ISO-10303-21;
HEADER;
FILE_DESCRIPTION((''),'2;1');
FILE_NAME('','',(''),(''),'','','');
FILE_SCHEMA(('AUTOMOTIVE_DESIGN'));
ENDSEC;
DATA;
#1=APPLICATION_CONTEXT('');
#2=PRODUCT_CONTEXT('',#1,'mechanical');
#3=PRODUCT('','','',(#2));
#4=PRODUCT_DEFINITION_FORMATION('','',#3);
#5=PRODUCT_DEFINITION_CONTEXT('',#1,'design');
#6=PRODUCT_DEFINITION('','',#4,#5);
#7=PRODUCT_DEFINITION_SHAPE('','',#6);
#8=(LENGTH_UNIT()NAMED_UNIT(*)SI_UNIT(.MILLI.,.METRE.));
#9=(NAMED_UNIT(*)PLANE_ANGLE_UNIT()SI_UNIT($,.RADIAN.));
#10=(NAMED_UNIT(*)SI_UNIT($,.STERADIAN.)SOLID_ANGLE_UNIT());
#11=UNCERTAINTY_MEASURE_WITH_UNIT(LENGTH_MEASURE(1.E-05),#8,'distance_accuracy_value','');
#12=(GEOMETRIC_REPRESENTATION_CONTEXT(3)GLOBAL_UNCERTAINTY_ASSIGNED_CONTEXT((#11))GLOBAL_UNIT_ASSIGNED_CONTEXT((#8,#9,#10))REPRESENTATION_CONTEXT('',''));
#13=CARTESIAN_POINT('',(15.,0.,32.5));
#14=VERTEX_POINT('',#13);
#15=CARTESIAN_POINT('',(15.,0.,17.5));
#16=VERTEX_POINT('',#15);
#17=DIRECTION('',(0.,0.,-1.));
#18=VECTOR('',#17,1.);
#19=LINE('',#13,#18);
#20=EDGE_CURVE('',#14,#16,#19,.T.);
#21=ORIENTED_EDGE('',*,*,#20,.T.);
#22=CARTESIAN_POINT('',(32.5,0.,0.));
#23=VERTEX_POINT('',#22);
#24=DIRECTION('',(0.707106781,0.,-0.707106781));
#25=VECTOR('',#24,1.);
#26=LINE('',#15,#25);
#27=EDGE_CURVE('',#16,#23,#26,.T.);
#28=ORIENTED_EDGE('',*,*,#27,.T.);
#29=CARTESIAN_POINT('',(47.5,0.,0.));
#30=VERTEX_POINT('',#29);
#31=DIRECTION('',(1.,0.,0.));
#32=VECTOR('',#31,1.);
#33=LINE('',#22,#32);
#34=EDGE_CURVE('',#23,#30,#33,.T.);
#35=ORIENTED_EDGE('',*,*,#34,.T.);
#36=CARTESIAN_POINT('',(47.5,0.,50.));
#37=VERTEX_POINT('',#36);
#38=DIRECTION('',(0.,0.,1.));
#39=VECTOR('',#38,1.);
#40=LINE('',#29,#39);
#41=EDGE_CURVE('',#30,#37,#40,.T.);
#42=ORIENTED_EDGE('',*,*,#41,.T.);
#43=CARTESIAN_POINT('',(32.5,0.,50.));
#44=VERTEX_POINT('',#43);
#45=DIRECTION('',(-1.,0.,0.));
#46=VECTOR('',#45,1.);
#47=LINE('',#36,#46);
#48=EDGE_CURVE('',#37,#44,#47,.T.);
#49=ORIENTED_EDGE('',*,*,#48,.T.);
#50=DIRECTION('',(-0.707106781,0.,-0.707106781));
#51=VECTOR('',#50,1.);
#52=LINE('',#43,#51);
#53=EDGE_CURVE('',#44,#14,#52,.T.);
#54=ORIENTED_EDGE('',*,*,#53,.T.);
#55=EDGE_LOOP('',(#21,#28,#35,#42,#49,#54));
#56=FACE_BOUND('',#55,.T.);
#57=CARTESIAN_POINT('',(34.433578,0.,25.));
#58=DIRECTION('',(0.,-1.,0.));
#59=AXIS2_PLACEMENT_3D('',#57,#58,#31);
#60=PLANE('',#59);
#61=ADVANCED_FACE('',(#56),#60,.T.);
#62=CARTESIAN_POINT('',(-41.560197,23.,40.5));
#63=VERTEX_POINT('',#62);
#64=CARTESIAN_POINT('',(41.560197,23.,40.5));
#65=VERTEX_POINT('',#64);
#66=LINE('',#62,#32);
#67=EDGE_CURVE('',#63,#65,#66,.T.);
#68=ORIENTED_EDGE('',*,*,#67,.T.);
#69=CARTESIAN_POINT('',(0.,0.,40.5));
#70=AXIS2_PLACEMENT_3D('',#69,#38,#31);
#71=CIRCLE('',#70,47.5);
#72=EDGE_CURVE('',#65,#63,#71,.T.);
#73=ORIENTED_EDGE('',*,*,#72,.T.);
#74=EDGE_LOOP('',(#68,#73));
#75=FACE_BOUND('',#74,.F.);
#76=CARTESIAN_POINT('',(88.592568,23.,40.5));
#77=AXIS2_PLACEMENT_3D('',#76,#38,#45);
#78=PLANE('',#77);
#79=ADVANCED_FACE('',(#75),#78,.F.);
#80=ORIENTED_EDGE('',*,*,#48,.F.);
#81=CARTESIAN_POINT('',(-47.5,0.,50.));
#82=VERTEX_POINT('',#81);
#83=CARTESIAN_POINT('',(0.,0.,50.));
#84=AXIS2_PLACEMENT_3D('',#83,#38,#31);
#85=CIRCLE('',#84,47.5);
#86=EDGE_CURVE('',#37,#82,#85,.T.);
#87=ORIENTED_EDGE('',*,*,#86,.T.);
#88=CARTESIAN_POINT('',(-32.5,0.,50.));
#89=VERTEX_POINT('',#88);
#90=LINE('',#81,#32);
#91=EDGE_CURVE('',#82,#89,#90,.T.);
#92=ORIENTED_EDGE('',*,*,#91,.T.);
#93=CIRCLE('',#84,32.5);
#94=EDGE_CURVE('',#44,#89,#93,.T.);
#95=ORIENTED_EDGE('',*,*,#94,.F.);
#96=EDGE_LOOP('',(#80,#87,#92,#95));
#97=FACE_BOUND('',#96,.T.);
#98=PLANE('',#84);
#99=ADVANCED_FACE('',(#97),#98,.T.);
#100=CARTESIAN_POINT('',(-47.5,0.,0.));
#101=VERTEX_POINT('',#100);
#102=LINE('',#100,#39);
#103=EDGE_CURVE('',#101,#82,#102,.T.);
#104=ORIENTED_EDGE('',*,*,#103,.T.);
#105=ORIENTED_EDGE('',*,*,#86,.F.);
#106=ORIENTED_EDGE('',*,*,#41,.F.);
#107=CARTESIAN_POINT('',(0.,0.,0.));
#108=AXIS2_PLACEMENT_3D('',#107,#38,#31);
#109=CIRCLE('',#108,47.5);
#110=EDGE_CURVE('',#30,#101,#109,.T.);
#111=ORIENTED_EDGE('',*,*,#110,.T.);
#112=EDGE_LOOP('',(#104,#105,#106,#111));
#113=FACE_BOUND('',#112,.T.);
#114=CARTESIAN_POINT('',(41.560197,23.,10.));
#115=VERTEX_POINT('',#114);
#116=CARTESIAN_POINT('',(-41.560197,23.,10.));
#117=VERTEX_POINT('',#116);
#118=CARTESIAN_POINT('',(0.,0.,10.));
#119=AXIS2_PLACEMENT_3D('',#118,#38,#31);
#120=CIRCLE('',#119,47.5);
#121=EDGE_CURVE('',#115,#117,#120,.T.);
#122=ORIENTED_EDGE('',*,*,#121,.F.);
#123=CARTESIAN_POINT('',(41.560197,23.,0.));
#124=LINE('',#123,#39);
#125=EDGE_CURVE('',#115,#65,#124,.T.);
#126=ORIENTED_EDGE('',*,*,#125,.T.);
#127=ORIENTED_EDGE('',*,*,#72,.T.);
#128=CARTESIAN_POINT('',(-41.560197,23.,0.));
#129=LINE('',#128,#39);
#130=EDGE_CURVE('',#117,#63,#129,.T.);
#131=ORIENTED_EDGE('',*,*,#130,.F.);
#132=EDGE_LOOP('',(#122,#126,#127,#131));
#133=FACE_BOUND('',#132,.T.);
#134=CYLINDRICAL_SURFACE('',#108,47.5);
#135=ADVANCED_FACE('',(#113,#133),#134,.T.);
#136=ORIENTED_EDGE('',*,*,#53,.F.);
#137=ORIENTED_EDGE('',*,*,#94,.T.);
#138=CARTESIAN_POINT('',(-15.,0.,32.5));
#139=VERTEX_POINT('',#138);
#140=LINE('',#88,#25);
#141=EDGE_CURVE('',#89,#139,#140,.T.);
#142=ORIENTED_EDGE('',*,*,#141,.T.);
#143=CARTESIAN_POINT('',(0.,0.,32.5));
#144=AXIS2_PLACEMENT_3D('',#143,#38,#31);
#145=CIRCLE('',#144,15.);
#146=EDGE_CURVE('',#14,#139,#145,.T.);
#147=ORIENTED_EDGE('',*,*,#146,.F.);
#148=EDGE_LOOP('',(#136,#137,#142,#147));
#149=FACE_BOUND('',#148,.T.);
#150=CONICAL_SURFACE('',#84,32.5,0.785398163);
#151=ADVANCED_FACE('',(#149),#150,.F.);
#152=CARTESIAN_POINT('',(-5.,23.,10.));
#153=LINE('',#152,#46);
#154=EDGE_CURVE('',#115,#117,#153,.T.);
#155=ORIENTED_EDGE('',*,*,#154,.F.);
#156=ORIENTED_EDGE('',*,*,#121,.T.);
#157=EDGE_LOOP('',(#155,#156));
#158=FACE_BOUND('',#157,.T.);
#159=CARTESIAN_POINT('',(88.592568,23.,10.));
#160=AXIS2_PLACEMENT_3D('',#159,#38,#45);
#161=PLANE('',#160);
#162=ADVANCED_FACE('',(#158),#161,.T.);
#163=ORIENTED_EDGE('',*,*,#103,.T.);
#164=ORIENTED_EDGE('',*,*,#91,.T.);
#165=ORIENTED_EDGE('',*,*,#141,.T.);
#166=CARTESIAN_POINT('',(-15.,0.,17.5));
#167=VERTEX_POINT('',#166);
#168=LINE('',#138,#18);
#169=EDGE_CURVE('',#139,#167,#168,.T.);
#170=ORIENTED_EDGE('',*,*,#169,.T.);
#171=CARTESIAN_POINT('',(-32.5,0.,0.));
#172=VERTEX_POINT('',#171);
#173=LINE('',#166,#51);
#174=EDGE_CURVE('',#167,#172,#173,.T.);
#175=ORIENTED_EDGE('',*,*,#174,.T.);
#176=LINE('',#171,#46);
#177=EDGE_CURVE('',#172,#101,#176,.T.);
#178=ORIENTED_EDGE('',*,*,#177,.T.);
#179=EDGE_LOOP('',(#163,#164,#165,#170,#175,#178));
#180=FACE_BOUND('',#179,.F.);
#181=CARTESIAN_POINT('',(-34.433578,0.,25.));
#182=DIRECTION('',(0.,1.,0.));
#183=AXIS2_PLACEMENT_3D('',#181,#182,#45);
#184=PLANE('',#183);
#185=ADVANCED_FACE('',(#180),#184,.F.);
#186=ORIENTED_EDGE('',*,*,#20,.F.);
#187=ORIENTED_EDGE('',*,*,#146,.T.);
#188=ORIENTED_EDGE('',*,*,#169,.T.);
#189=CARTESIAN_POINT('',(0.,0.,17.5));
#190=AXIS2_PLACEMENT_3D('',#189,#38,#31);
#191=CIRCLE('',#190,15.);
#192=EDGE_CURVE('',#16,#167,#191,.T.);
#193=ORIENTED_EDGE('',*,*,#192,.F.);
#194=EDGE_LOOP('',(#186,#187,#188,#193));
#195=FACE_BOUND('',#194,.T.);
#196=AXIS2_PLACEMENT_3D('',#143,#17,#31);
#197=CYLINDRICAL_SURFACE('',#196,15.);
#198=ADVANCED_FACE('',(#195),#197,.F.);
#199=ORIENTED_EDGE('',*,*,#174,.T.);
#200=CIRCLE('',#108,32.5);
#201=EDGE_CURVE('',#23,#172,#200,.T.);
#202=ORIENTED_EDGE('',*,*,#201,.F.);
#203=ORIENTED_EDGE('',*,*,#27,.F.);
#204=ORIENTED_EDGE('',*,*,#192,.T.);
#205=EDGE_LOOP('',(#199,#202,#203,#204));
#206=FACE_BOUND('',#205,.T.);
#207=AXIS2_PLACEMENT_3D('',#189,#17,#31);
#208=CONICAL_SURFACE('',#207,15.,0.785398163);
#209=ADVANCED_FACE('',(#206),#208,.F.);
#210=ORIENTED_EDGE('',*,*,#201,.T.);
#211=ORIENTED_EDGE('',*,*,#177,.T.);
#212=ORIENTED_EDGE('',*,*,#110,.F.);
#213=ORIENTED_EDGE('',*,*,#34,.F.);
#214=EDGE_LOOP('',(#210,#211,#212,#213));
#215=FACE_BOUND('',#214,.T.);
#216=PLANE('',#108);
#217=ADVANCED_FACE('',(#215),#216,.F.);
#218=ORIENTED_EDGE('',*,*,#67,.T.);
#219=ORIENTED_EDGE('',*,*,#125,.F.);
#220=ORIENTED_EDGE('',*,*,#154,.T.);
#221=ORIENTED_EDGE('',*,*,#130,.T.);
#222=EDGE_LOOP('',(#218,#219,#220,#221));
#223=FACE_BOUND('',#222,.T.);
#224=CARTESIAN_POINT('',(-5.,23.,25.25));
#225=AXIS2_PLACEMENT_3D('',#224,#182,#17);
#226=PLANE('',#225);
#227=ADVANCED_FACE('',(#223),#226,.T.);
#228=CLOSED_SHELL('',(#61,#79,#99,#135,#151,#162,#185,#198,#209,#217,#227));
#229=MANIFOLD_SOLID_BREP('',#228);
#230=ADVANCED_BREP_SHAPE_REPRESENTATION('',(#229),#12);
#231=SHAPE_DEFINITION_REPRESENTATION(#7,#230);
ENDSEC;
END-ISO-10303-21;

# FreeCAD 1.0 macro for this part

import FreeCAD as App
import Part
import Sketcher
from FreeCAD import Vector

doc = App.newDocument("Part")
body = doc.addObject("PartDesign::Body", "Body")

sketch1 = body.newObject("Sketcher::SketchObject", "Sketch")
sketch1.AttachmentSupport = (doc.getObject("XZ_Plane"), [""])
sketch1.MapMode = "FlatFace"
sketch1.AttachmentOffset = App.Placement(Vector(0, 0, -23), App.Rotation())
sketch1.addGeometry(Part.LineSegment(Vector(-99, 40, 0), Vector(89, 40, 0)), False)
sketch1.addGeometry(Part.LineSegment(Vector(89, 40, 0), Vector(89, 10, 0)), False)
sketch1.addGeometry(Part.LineSegment(Vector(89, 10, 0), Vector(-99, 10, 0)), False)
sketch1.addGeometry(Part.LineSegment(Vector(-99, 10, 0), Vector(-99, 40, 0)), False)
sketch1.addConstraint(Sketcher.Constraint("Coincident", 0, 2, 1, 1))
sketch1.addConstraint(Sketcher.Constraint("Coincident", 1, 2, 2, 1))
sketch1.addConstraint(Sketcher.Constraint("Coincident", 2, 2, 3, 1))
sketch1.addConstraint(Sketcher.Constraint("Coincident", 3, 2, 0, 1))
sketch1.addConstraint(Sketcher.Constraint("Horizontal", 0))
sketch1.addConstraint(Sketcher.Constraint("Vertical", 1))
sketch1.addConstraint(Sketcher.Constraint("Horizontal", 2))
sketch1.addConstraint(Sketcher.Constraint("Vertical", 3))
sketch1.addConstraint(Sketcher.Constraint("DistanceY", 1, 2, 1, 1, 30.5))
sketch1.addConstraint(Sketcher.Constraint("DistanceY", -1, 1, 1, 2, 10.0))
sketch1.addConstraint(Sketcher.Constraint("DistanceX", 0, 1, 0, 2, 187.185136))
sketch1.addConstraint(Sketcher.Constraint("DistanceX", -1, 1, 0, 2, 88.592568))
pad1 = body.newObject("PartDesign::Pad", "Pad")
pad1.Profile = sketch1
pad1.Length = 40
pad1.Reversed = True
body2 = doc.addObject("PartDesign::Body", "Body001")

sketch2 = body2.newObject("Sketcher::SketchObject", "Sketch001")
sketch2.AttachmentSupport = (doc.getObject("XZ_Plane001"), [""])
sketch2.MapMode = "FlatFace"
sketch2.addGeometry(Part.LineSegment(Vector(32, 50, 0), Vector(15, 32, 0)), False)
sketch2.addGeometry(Part.LineSegment(Vector(15, 32, 0), Vector(15, 18, 0)), False)
sketch2.addGeometry(Part.LineSegment(Vector(15, 18, 0), Vector(32, 0, 0)), False)
sketch2.addGeometry(Part.LineSegment(Vector(32, 0, 0), Vector(48, 0, 0)), False)
sketch2.addGeometry(Part.LineSegment(Vector(48, 0, 0), Vector(48, 50, 0)), False)
sketch2.addGeometry(Part.LineSegment(Vector(48, 50, 0), Vector(32, 50, 0)), False)
sketch2.addConstraint(Sketcher.Constraint("Coincident", 0, 2, 1, 1))
sketch2.addConstraint(Sketcher.Constraint("Coincident", 1, 2, 2, 1))
sketch2.addConstraint(Sketcher.Constraint("Coincident", 2, 2, 3, 1))
sketch2.addConstraint(Sketcher.Constraint("Coincident", 3, 2, 4, 1))
sketch2.addConstraint(Sketcher.Constraint("Coincident", 4, 2, 5, 1))
sketch2.addConstraint(Sketcher.Constraint("Coincident", 5, 2, 0, 1))
sketch2.addConstraint(Sketcher.Constraint("Vertical", 1))
sketch2.addConstraint(Sketcher.Constraint("Horizontal", 3))
sketch2.addConstraint(Sketcher.Constraint("Vertical", 4))
sketch2.addConstraint(Sketcher.Constraint("Horizontal", 5))
sketch2.addConstraint(Sketcher.Constraint("PointOnObject", 2, 2, -1))
sketch2.addConstraint(Sketcher.Constraint("Perpendicular", 0, 2))
sketch2.addConstraint(Sketcher.Constraint("Vertical", 2, 2, 5, 2))
sketch2.addConstraint(Sketcher.Constraint("Equal", 5, 1))
sketch2.addConstraint(Sketcher.Constraint("Equal", 0, 2))
sketch2.addConstraint(Sketcher.Constraint("DistanceX", 3, 1, 3, 2, 15.0))
sketch2.addConstraint(Sketcher.Constraint("DistanceY", 4, 1, 4, 2, 50.0))
sketch2.addConstraint(Sketcher.Constraint("DistanceX", -1, 1, 0, 2, 15.0))
revolution = body2.newObject("PartDesign::Revolution", "Revolution")
revolution.Profile = sketch2
revolution.ReferenceAxis = (sketch2, ["V_Axis"])
revolution.Angle = 180
doc.recompute()

boolean = body2.newObject("PartDesign::Boolean", "Boolean")
boolean.Type = "Cut"
boolean.addObjects([body])

doc.recompute()
